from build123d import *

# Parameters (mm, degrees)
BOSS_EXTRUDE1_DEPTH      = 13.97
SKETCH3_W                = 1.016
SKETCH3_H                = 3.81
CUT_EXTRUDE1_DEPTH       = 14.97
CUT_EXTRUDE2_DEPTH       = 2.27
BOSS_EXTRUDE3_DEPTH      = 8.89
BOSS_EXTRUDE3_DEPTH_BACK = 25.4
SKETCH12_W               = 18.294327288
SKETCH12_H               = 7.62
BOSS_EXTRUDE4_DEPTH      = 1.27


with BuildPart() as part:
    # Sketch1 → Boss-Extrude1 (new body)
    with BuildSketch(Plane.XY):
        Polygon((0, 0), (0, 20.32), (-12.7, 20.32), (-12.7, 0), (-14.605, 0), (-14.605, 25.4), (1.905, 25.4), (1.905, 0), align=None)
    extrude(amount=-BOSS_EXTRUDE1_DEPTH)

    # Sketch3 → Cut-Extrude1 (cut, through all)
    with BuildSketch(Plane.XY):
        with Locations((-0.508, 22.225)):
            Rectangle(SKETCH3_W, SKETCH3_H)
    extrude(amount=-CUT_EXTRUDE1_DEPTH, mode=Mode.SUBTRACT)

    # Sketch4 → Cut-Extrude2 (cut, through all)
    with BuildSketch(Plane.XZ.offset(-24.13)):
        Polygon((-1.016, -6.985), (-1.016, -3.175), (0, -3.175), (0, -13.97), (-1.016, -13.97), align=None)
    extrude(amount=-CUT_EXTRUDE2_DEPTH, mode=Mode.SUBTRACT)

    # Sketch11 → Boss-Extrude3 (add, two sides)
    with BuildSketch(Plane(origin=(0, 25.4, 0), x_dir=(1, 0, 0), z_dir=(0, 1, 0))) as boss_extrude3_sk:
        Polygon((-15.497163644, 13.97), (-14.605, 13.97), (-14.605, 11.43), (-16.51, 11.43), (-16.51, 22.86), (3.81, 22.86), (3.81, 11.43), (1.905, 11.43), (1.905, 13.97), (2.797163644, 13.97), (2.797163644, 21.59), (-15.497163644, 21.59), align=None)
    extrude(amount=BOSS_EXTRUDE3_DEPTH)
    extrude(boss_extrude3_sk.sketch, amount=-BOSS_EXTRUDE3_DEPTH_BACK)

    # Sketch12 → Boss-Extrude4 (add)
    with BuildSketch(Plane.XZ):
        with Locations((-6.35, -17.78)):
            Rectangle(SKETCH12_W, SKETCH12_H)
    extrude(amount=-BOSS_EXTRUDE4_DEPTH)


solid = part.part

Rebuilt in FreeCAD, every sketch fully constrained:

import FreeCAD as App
import Part
import Sketcher
Q = App.Units.Quantity

doc = App.newDocument("Part")
params = doc.addObject("Spreadsheet::Sheet", "Params")
for row, (alias, value) in enumerate([
    ("sketch1_height", "1 in"),
    ("sketch1_width", "0.5 in"),
    ("sketch1_height2", "0.8 in"),
    ("sketch1_width2", "0.65 in"),
    ("pad1_length", "0.55 in"),
    ("sketch2_width", "0.04 in"),
    ("sketch2_height", "0.15 in"),
    ("sketch3_width", "0.04 in"),
    ("sketch3_height", "0.425 in"),
    ("sketch4_width", "0.8 in"),
    ("sketch4_height", "0.3 in"),
    ("sketch4_height2", "0.1 in"),
    ("sketch4_height3", "0.45 in"),
    ("sketch4_width2", "0.075 in"),
    ("pad2_length", "0.35 in"),
    ("pad2_length2", "1 in"),
    ("sketch5_height", "0.3 in"),
    ("pad3_length", "0.05 in"),
], start=1):
    params.set(f"A{row}", alias)
    params.set(f"B{row}", "=" + value)
    params.setAlias(f"B{row}", alias)

body = doc.addObject("PartDesign::Body", "Body")

# Sketch on XY plane
sketch1 = body.newObject("Sketcher::SketchObject", "Sketch")
sketch1.AttachmentSupport = (doc.getObject("XY_Plane"), [""])
sketch1.MapMode = "FlatFace"
sketch1.addGeometry(Part.LineSegment(App.Vector(0, 20.3, 0), App.Vector(0, 0, 0)), False)
sketch1.addGeometry(Part.LineSegment(App.Vector(0, 0, 0), App.Vector(1.9, 0, 0)), False)
sketch1.addGeometry(Part.LineSegment(App.Vector(1.9, 0, 0), App.Vector(1.9, 25.4, 0)), False)
sketch1.addGeometry(Part.LineSegment(App.Vector(1.9, 25.4, 0), App.Vector(-14.6, 25.4, 0)), False)
sketch1.addGeometry(Part.LineSegment(App.Vector(-14.6, 25.4, 0), App.Vector(-14.6, 0, 0)), False)
sketch1.addGeometry(Part.LineSegment(App.Vector(-14.6, 0, 0), App.Vector(-12.7, 0, 0)), False)
sketch1.addGeometry(Part.LineSegment(App.Vector(-12.7, 0, 0), App.Vector(-12.7, 20.3, 0)), False)
sketch1.addGeometry(Part.LineSegment(App.Vector(-12.7, 20.3, 0), App.Vector(0, 20.3, 0)), False)
sketch1.addConstraint(Sketcher.Constraint("Coincident", 0, 2, 1, 1))
sketch1.addConstraint(Sketcher.Constraint("Coincident", 1, 2, 2, 1))
sketch1.addConstraint(Sketcher.Constraint("Coincident", 2, 2, 3, 1))
sketch1.addConstraint(Sketcher.Constraint("Coincident", 3, 2, 4, 1))
sketch1.addConstraint(Sketcher.Constraint("Coincident", 4, 2, 5, 1))
sketch1.addConstraint(Sketcher.Constraint("Coincident", 5, 2, 6, 1))
sketch1.addConstraint(Sketcher.Constraint("Coincident", 6, 2, 7, 1))
sketch1.addConstraint(Sketcher.Constraint("Coincident", 7, 2, 0, 1))
sketch1.addConstraint(Sketcher.Constraint("Vertical", 0))
sketch1.addConstraint(Sketcher.Constraint("Horizontal", 1))
sketch1.addConstraint(Sketcher.Constraint("Vertical", 2))
sketch1.addConstraint(Sketcher.Constraint("Horizontal", 3))
sketch1.addConstraint(Sketcher.Constraint("Vertical", 4))
sketch1.addConstraint(Sketcher.Constraint("Horizontal", 5))
sketch1.addConstraint(Sketcher.Constraint("Vertical", 6))
sketch1.addConstraint(Sketcher.Constraint("Horizontal", 7))
sketch1.addConstraint(Sketcher.Constraint("Coincident", 0, 2, -1, 1))
sketch1.addConstraint(Sketcher.Constraint("PointOnObject", 4, 2, -1))
sketch1.addConstraint(Sketcher.Constraint("Equal", 1, 5))
sketch1.addConstraint(Sketcher.Constraint("DistanceY", 2, 1, 2, 2, Q("1 in")))
sketch1.addConstraint(Sketcher.Constraint("DistanceX", 7, 1, 7, 2, Q("0.5 in")))
sketch1.addConstraint(Sketcher.Constraint("DistanceY", 0, 2, 0, 1, Q("0.8 in")))
sketch1.addConstraint(Sketcher.Constraint("DistanceX", 3, 2, 3, 1, Q("0.65 in")))
sketch1.setExpression("Constraints[19]", "Params.sketch1_height")
sketch1.setExpression("Constraints[20]", "Params.sketch1_width")
sketch1.setExpression("Constraints[21]", "Params.sketch1_height2")
sketch1.setExpression("Constraints[22]", "Params.sketch1_width2")
pad1 = body.newObject("PartDesign::Pad", "Pad")
pad1.Profile = sketch1
pad1.setExpression("Length", "Params.pad1_length")
pad1.Reversed = True

# Sketch on XY plane
sketch2 = body.newObject("Sketcher::SketchObject", "Sketch001")
sketch2.AttachmentSupport = (doc.getObject("XY_Plane"), [""])
sketch2.MapMode = "FlatFace"
sketch2.addGeometry(Part.LineSegment(App.Vector(-1, 24.1, 0), App.Vector(-1, 20.3, 0)), False)
sketch2.addGeometry(Part.LineSegment(App.Vector(-1, 20.3, 0), App.Vector(0, 20.3, 0)), False)
sketch2.addGeometry(Part.LineSegment(App.Vector(0, 20.3, 0), App.Vector(0, 24.1, 0)), False)
sketch2.addGeometry(Part.LineSegment(App.Vector(0, 24.1, 0), App.Vector(-1, 24.1, 0)), False)
sketch2.addConstraint(Sketcher.Constraint("Coincident", 0, 2, 1, 1))
sketch2.addConstraint(Sketcher.Constraint("Coincident", 1, 2, 2, 1))
sketch2.addConstraint(Sketcher.Constraint("Coincident", 2, 2, 3, 1))
sketch2.addConstraint(Sketcher.Constraint("Coincident", 3, 2, 0, 1))
sketch2.addConstraint(Sketcher.Constraint("Vertical", 0))
sketch2.addConstraint(Sketcher.Constraint("Horizontal", 1))
sketch2.addConstraint(Sketcher.Constraint("Vertical", 2))
sketch2.addConstraint(Sketcher.Constraint("Horizontal", 3))
sketch2.addConstraint(Sketcher.Constraint("PointOnObject", 1, 2, -2))
sketch2.addConstraint(Sketcher.Constraint("DistanceX", 1, 1, 1, 2, Q("0.04 in")))
sketch2.addConstraint(Sketcher.Constraint("DistanceY", 0, 2, 0, 1, Q("0.15 in")))
sketch2.addConstraint(Sketcher.Constraint("DistanceY", -1, 1, 0, 2, Q("0.8 in")))
sketch2.setExpression("Constraints[9]", "Params.sketch2_width")
sketch2.setExpression("Constraints[10]", "Params.sketch2_height")
pocket1 = body.newObject("PartDesign::Pocket", "Pocket")
pocket1.Profile = sketch2
pocket1.Type = "ThroughAll"

# Sketch on XZ plane
sketch3 = body.newObject("Sketcher::SketchObject", "Sketch002")
sketch3.AttachmentSupport = (doc.getObject("XZ_Plane"), [""])
sketch3.MapMode = "FlatFace"
sketch3.AttachmentOffset = App.Placement(App.Vector(0, 0, -0.95 * 25.4), App.Rotation())
sketch3.addGeometry(Part.LineSegment(App.Vector(-1, -3.2, 0), App.Vector(-1, -14, 0)), False)
sketch3.addGeometry(Part.LineSegment(App.Vector(-1, -14, 0), App.Vector(0, -14, 0)), False)
sketch3.addGeometry(Part.LineSegment(App.Vector(0, -14, 0), App.Vector(0, -3.2, 0)), False)
sketch3.addGeometry(Part.LineSegment(App.Vector(0, -3.2, 0), App.Vector(-1, -3.2, 0)), False)
sketch3.addConstraint(Sketcher.Constraint("Coincident", 0, 2, 1, 1))
sketch3.addConstraint(Sketcher.Constraint("Coincident", 1, 2, 2, 1))
sketch3.addConstraint(Sketcher.Constraint("Coincident", 2, 2, 3, 1))
sketch3.addConstraint(Sketcher.Constraint("Coincident", 3, 2, 0, 1))
sketch3.addConstraint(Sketcher.Constraint("Vertical", 0))
sketch3.addConstraint(Sketcher.Constraint("Horizontal", 1))
sketch3.addConstraint(Sketcher.Constraint("Vertical", 2))
sketch3.addConstraint(Sketcher.Constraint("Horizontal", 3))
sketch3.addConstraint(Sketcher.Constraint("PointOnObject", 1, 2, -2))
sketch3.addConstraint(Sketcher.Constraint("DistanceX", 1, 1, 1, 2, Q("0.04 in")))
sketch3.addConstraint(Sketcher.Constraint("DistanceY", 0, 2, 0, 1, Q("0.425 in")))
sketch3.addConstraint(Sketcher.Constraint("DistanceY", 0, 2, -1, 1, Q("0.55 in")))
sketch3.setExpression("Constraints[9]", "Params.sketch3_width")
sketch3.setExpression("Constraints[10]", "Params.sketch3_height")
pocket2 = body.newObject("PartDesign::Pocket", "Pocket001")
pocket2.Profile = sketch3
pocket2.Type = "ThroughAll"

# Sketch on XZ plane
sketch4 = body.newObject("Sketcher::SketchObject", "Sketch003")
sketch4.AttachmentSupport = (doc.getObject("XZ_Plane"), [""])
sketch4.MapMode = "FlatFace"
sketch4.AttachmentOffset = App.Placement(App.Vector(0, 0, -1 * 25.4), App.Rotation())
sketch4.addGeometry(Part.LineSegment(App.Vector(-14.6, -14, 0), App.Vector(-15.5, -14, 0)), False)
sketch4.addGeometry(Part.LineSegment(App.Vector(-15.5, -14, 0), App.Vector(-15.5, -21.6, 0)), False)
sketch4.addGeometry(Part.LineSegment(App.Vector(-15.5, -21.6, 0), App.Vector(2.8, -21.6, 0)), False)
sketch4.addGeometry(Part.LineSegment(App.Vector(2.8, -21.6, 0), App.Vector(2.8, -14, 0)), False)
sketch4.addGeometry(Part.LineSegment(App.Vector(2.8, -14, 0), App.Vector(1.9, -14, 0)), False)
sketch4.addGeometry(Part.LineSegment(App.Vector(1.9, -14, 0), App.Vector(1.9, -11.4, 0)), False)
sketch4.addGeometry(Part.LineSegment(App.Vector(1.9, -11.4, 0), App.Vector(3.8, -11.4, 0)), False)
sketch4.addGeometry(Part.LineSegment(App.Vector(3.8, -11.4, 0), App.Vector(3.8, -22.9, 0)), False)
sketch4.addGeometry(Part.LineSegment(App.Vector(3.8, -22.9, 0), App.Vector(-16.5, -22.9, 0)), False)
sketch4.addGeometry(Part.LineSegment(App.Vector(-16.5, -22.9, 0), App.Vector(-16.5, -11.4, 0)), False)
sketch4.addGeometry(Part.LineSegment(App.Vector(-16.5, -11.4, 0), App.Vector(-14.6, -11.4, 0)), False)
sketch4.addGeometry(Part.LineSegment(App.Vector(-14.6, -11.4, 0), App.Vector(-14.6, -14, 0)), False)
sketch4.addConstraint(Sketcher.Constraint("Coincident", 0, 2, 1, 1))
sketch4.addConstraint(Sketcher.Constraint("Coincident", 1, 2, 2, 1))
sketch4.addConstraint(Sketcher.Constraint("Coincident", 2, 2, 3, 1))
sketch4.addConstraint(Sketcher.Constraint("Coincident", 3, 2, 4, 1))
sketch4.addConstraint(Sketcher.Constraint("Coincident", 4, 2, 5, 1))
sketch4.addConstraint(Sketcher.Constraint("Coincident", 5, 2, 6, 1))
sketch4.addConstraint(Sketcher.Constraint("Coincident", 6, 2, 7, 1))
sketch4.addConstraint(Sketcher.Constraint("Coincident", 7, 2, 8, 1))
sketch4.addConstraint(Sketcher.Constraint("Coincident", 8, 2, 9, 1))
sketch4.addConstraint(Sketcher.Constraint("Coincident", 9, 2, 10, 1))
sketch4.addConstraint(Sketcher.Constraint("Coincident", 10, 2, 11, 1))
sketch4.addConstraint(Sketcher.Constraint("Coincident", 11, 2, 0, 1))
sketch4.addConstraint(Sketcher.Constraint("Horizontal", 0))
sketch4.addConstraint(Sketcher.Constraint("Vertical", 1))
sketch4.addConstraint(Sketcher.Constraint("Horizontal", 2))
sketch4.addConstraint(Sketcher.Constraint("Vertical", 3))
sketch4.addConstraint(Sketcher.Constraint("Horizontal", 4))
sketch4.addConstraint(Sketcher.Constraint("Vertical", 5))
sketch4.addConstraint(Sketcher.Constraint("Horizontal", 6))
sketch4.addConstraint(Sketcher.Constraint("Vertical", 7))
sketch4.addConstraint(Sketcher.Constraint("Horizontal", 8))
sketch4.addConstraint(Sketcher.Constraint("Vertical", 9))
sketch4.addConstraint(Sketcher.Constraint("Horizontal", 10))
sketch4.addConstraint(Sketcher.Constraint("Vertical", 11))
sketch4.addConstraint(Sketcher.Constraint("Horizontal", 0, 2, 3, 2))
sketch4.addConstraint(Sketcher.Constraint("Horizontal", 6, 2, 9, 2))
sketch4.addConstraint(Sketcher.Constraint("Equal", 0, 4))
sketch4.addConstraint(Sketcher.Constraint("Equal", 6, 10))
sketch4.addConstraint(Sketcher.Constraint("DistanceX", 8, 2, 8, 1, Q("0.8 in")))
sketch4.addConstraint(Sketcher.Constraint("DistanceY", 1, 2, 1, 1, Q("0.3 in")))
sketch4.addConstraint(Sketcher.Constraint("DistanceY", 5, 1, 5, 2, Q("0.1 in")))
sketch4.addConstraint(Sketcher.Constraint("DistanceY", 7, 2, 7, 1, Q("0.45 in")))
sketch4.addConstraint(Sketcher.Constraint("DistanceY", 7, 2, -1, 1, Q("0.9 in")))
sketch4.addConstraint(Sketcher.Constraint("DistanceX", 6, 1, 6, 2, Q("0.075 in")))
sketch4.addConstraint(Sketcher.Constraint("DistanceX", -1, 1, 6, 2, Q("0.15 in")))
sketch4.addConstraint(Sketcher.Constraint("DistanceX", 0, 2, 0, 1, Q("0.892164 mm")))
sketch4.setExpression("Constraints[28]", "Params.sketch4_width")
sketch4.setExpression("Constraints[29]", "Params.sketch4_height")
sketch4.setExpression("Constraints[30]", "Params.sketch4_height2")
sketch4.setExpression("Constraints[31]", "Params.sketch4_height3")
sketch4.setExpression("Constraints[33]", "Params.sketch4_width2")
pad2 = body.newObject("PartDesign::Pad", "Pad001")
pad2.Profile = sketch4
pad2.Type = "TwoLengths"
pad2.setExpression("Length", "Params.pad2_length")
pad2.setExpression("Length2", "Params.pad2_length2")
pad2.Reversed = True

# Sketch on XZ plane
sketch5 = body.newObject("Sketcher::SketchObject", "Sketch004")
sketch5.AttachmentSupport = (doc.getObject("XZ_Plane"), [""])
sketch5.MapMode = "FlatFace"
sketch5.addGeometry(Part.LineSegment(App.Vector(-15, -14, 0), App.Vector(-15, -22, 0)), False)
sketch5.addGeometry(Part.LineSegment(App.Vector(-15, -22, 0), App.Vector(3, -22, 0)), False)
sketch5.addGeometry(Part.LineSegment(App.Vector(3, -22, 0), App.Vector(3, -14, 0)), False)
sketch5.addGeometry(Part.LineSegment(App.Vector(3, -14, 0), App.Vector(-15, -14, 0)), False)
sketch5.addConstraint(Sketcher.Constraint("Coincident", 0, 2, 1, 1))
sketch5.addConstraint(Sketcher.Constraint("Coincident", 1, 2, 2, 1))
sketch5.addConstraint(Sketcher.Constraint("Coincident", 2, 2, 3, 1))
sketch5.addConstraint(Sketcher.Constraint("Coincident", 3, 2, 0, 1))
sketch5.addConstraint(Sketcher.Constraint("Vertical", 0))
sketch5.addConstraint(Sketcher.Constraint("Horizontal", 1))
sketch5.addConstraint(Sketcher.Constraint("Vertical", 2))
sketch5.addConstraint(Sketcher.Constraint("Horizontal", 3))
sketch5.addConstraint(Sketcher.Constraint("DistanceY", 0, 2, 0, 1, Q("0.3 in")))
sketch5.addConstraint(Sketcher.Constraint("DistanceY", 0, 2, -1, 1, Q("0.85 in")))
sketch5.addConstraint(Sketcher.Constraint("DistanceX", 1, 1, 1, 2, Q("18.294327 mm")))
sketch5.addConstraint(Sketcher.Constraint("DistanceX", 0, 2, -1, 1, Q("15.497164 mm")))
sketch5.setExpression("Constraints[8]", "Params.sketch5_height")
pad3 = body.newObject("PartDesign::Pad", "Pad002")
pad3.Profile = sketch5
pad3.setExpression("Length", "Params.pad3_length")
pad3.Reversed = True

doc.recompute()
